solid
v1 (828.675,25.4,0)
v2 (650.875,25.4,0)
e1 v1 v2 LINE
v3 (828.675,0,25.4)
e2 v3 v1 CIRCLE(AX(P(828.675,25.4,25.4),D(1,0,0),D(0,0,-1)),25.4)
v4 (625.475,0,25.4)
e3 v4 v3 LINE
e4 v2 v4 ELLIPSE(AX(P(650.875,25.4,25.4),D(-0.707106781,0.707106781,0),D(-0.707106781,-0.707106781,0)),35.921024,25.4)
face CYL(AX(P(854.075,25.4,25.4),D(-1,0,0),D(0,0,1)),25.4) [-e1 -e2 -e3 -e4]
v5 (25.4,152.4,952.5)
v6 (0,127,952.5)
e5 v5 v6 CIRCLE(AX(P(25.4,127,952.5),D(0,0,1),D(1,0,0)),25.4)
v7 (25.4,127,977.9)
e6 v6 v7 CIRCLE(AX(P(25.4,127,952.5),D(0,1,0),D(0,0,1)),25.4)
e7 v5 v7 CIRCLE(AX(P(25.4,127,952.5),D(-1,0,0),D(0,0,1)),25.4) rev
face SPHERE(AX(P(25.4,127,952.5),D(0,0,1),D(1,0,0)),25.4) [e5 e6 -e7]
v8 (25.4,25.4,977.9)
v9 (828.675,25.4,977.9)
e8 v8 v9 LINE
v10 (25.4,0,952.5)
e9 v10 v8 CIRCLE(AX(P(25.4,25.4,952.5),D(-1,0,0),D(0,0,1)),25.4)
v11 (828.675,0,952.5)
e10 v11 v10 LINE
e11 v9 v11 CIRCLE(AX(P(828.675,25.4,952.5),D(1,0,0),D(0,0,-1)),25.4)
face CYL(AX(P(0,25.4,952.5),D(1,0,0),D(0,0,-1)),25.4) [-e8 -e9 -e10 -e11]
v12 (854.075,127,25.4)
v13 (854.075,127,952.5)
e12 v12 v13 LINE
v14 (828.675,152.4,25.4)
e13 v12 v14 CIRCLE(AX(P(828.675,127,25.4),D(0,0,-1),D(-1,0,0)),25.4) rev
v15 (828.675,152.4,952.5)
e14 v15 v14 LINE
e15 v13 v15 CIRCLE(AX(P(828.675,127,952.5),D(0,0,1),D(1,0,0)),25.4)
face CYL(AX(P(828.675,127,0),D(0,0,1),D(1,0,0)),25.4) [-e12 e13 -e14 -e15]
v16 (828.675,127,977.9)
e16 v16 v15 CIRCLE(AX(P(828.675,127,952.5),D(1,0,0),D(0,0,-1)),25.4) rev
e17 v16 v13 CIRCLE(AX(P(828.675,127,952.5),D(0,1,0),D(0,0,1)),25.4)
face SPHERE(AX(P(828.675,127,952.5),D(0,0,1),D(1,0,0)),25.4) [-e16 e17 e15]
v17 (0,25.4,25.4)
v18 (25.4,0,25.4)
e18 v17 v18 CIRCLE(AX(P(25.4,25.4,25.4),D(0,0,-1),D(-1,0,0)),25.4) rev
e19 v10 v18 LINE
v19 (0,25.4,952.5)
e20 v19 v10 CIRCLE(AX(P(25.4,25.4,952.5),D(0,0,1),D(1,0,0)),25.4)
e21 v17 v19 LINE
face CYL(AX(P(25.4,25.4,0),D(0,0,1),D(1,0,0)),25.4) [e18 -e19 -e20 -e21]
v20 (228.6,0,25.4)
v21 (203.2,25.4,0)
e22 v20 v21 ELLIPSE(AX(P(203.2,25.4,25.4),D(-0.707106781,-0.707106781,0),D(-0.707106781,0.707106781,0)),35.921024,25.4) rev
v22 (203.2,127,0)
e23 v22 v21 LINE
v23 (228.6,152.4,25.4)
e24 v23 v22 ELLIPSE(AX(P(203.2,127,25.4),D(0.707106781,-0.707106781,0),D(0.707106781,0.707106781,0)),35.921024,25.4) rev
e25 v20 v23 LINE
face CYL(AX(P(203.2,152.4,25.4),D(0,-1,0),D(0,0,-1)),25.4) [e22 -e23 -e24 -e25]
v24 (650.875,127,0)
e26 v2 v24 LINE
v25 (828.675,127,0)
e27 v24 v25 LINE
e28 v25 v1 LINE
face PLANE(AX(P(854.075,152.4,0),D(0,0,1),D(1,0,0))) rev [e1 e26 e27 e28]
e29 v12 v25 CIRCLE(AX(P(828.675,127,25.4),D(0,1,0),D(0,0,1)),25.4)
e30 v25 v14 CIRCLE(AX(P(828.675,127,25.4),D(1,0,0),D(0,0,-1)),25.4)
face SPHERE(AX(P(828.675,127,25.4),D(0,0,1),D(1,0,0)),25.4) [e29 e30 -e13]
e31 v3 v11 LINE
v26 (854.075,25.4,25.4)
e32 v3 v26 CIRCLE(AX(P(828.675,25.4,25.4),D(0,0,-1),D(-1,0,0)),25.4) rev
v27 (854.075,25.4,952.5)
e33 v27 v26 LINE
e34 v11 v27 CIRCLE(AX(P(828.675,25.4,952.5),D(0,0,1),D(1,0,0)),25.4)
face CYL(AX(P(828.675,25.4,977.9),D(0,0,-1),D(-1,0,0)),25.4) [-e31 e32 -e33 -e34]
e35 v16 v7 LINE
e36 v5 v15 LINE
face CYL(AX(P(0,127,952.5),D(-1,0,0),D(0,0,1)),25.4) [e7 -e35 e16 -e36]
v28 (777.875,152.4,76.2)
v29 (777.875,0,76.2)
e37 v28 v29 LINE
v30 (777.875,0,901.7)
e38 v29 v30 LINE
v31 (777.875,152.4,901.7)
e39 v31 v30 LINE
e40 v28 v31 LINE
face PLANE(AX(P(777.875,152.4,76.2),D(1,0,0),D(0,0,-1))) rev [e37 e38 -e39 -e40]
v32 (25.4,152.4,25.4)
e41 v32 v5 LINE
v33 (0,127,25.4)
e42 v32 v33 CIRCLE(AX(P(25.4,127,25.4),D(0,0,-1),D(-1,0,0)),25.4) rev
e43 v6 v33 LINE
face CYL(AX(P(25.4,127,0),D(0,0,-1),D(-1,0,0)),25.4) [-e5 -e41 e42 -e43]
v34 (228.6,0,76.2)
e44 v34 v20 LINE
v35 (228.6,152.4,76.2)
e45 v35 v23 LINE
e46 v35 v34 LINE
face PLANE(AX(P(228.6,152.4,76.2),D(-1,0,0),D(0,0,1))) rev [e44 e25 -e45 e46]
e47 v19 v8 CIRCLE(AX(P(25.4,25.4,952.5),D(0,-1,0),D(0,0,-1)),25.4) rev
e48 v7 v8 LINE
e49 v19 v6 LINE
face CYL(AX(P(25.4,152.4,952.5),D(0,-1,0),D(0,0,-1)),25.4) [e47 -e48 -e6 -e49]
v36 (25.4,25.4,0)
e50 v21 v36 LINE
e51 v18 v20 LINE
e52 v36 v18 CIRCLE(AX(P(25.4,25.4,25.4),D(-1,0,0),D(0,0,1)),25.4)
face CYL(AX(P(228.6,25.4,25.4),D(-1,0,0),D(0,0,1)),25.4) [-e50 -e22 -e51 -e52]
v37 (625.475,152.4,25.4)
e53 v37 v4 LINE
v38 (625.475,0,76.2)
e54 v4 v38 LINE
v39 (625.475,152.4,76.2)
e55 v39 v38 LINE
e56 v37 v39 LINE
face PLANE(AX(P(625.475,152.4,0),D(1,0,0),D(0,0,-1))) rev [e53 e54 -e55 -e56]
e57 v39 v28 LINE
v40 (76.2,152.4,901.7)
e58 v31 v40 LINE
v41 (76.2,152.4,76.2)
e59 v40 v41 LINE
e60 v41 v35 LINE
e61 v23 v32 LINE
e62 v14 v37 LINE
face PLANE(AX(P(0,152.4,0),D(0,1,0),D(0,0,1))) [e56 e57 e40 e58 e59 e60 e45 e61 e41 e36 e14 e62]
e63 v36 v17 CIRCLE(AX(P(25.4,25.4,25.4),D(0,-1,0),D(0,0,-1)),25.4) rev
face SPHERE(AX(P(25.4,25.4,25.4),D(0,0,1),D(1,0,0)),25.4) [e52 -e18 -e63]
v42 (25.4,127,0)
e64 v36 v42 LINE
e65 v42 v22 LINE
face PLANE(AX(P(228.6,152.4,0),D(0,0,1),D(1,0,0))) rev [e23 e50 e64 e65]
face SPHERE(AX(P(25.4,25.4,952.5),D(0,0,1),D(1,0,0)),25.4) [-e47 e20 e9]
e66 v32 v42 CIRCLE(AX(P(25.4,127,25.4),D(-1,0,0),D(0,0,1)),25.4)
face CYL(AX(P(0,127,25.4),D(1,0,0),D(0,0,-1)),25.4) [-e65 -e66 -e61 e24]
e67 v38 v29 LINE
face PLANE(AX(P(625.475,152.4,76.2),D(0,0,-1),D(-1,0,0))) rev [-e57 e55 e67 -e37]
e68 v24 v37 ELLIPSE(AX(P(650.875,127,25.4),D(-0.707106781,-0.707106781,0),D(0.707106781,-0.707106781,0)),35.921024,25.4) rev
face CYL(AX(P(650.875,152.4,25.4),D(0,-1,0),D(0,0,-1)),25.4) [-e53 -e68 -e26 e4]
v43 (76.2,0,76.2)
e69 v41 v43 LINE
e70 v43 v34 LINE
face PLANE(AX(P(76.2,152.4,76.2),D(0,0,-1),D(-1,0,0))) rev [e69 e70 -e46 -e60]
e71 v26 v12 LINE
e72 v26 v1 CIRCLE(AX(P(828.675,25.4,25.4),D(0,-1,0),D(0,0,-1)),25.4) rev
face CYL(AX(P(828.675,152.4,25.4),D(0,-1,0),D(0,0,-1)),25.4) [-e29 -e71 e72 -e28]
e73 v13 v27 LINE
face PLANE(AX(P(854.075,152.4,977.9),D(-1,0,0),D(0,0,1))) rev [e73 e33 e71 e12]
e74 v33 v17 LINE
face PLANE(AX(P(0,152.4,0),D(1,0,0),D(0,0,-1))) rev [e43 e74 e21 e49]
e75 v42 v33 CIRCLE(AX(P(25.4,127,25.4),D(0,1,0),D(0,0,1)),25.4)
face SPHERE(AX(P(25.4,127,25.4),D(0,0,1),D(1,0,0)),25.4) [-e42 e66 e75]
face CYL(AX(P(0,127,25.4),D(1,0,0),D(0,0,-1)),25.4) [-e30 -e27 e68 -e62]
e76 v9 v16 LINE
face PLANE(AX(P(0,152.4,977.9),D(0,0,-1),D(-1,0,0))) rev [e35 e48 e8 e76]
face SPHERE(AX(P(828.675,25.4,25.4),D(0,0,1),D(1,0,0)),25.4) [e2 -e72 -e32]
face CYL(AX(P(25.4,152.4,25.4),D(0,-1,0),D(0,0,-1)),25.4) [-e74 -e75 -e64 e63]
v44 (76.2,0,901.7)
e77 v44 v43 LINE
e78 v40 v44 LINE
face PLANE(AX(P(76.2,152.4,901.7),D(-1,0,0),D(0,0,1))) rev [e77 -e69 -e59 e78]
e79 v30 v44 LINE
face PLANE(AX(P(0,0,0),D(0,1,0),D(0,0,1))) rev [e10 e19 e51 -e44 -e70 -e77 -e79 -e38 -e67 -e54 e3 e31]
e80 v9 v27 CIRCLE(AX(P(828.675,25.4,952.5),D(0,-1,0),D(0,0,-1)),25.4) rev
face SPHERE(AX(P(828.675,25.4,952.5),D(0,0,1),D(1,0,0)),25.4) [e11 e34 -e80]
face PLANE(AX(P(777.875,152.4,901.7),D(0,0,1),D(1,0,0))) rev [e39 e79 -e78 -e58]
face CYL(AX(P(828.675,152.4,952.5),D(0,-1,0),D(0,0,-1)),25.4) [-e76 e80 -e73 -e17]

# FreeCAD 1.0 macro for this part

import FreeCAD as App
import Part
import Sketcher
Q = App.Units.Quantity


def edges_at(feature, points):
    """Names of the edges that pass closest to the given points."""
    edges = feature.Shape.Edges
    near = lambda p: min(range(len(edges)), key=lambda i: edges[i].distToShape(Part.Vertex(*p))[0])
    return sorted({f"Edge{near(p) + 1}" for p in points})

doc = App.newDocument("Part")
body = doc.addObject("PartDesign::Body", "Body")

sketch1 = doc.addObject("Sketcher::SketchObject", "Sketch")
body.addObject(sketch1)
sketch1.AttachmentSupport = (doc.XZ_Plane, [""])
sketch1.MapMode = "FlatFace"
sketch1.addGeometry([
    Part.LineSegment(App.Vector(229, 0, 0), App.Vector(0, 0, 0)),
    Part.LineSegment(App.Vector(0, 0, 0), App.Vector(0, 978, 0)),
    Part.LineSegment(App.Vector(0, 978, 0), App.Vector(854, 978, 0)),
    Part.LineSegment(App.Vector(854, 978, 0), App.Vector(854, 0, 0)),
    Part.LineSegment(App.Vector(854, 0, 0), App.Vector(625, 0, 0)),
    Part.LineSegment(App.Vector(625, 0, 0), App.Vector(625, 76, 0)),
    Part.LineSegment(App.Vector(625, 76, 0), App.Vector(778, 76, 0)),
    Part.LineSegment(App.Vector(778, 76, 0), App.Vector(778, 902, 0)),
    Part.LineSegment(App.Vector(778, 902, 0), App.Vector(76, 902, 0)),
    Part.LineSegment(App.Vector(76, 902, 0), App.Vector(76, 76, 0)),
    Part.LineSegment(App.Vector(76, 76, 0), App.Vector(229, 76, 0)),
    Part.LineSegment(App.Vector(229, 76, 0), App.Vector(229, 0, 0)),
], False)
sketch1.addConstraint([
    Sketcher.Constraint("Coincident", 0, 2, 1, 1),
    Sketcher.Constraint("Coincident", 1, 2, 2, 1),
    Sketcher.Constraint("Coincident", 2, 2, 3, 1),
    Sketcher.Constraint("Coincident", 3, 2, 4, 1),
    Sketcher.Constraint("Coincident", 4, 2, 5, 1),
    Sketcher.Constraint("Coincident", 5, 2, 6, 1),
    Sketcher.Constraint("Coincident", 6, 2, 7, 1),
    Sketcher.Constraint("Coincident", 7, 2, 8, 1),
    Sketcher.Constraint("Coincident", 8, 2, 9, 1),
    Sketcher.Constraint("Coincident", 9, 2, 10, 1),
    Sketcher.Constraint("Coincident", 10, 2, 11, 1),
    Sketcher.Constraint("Coincident", 11, 2, 0, 1),
    Sketcher.Constraint("Horizontal", 0),
    Sketcher.Constraint("Vertical", 1),
    Sketcher.Constraint("Horizontal", 2),
    Sketcher.Constraint("Vertical", 3),
    Sketcher.Constraint("Horizontal", 4),
    Sketcher.Constraint("Vertical", 5),
    Sketcher.Constraint("Horizontal", 6),
    Sketcher.Constraint("Vertical", 7),
    Sketcher.Constraint("Horizontal", 8),
    Sketcher.Constraint("Vertical", 9),
    Sketcher.Constraint("Horizontal", 10),
    Sketcher.Constraint("Vertical", 11),
    Sketcher.Constraint("Coincident", 0, 2, -1, 1),
    Sketcher.Constraint("PointOnObject", 3, 2, -1),
    Sketcher.Constraint("Horizontal", 6, 2, 9, 2),
    Sketcher.Constraint("Equal", 0, 4),
    Sketcher.Constraint("Equal", 6, 10),
    Sketcher.Constraint("DistanceX", 0, 2, 0, 1, Q("9 in")),
    Sketcher.Constraint("DistanceX", 6, 1, 6, 2, Q("6 in")),
    Sketcher.Constraint("DistanceY", 5, 1, 5, 2, Q("3 in")),
    Sketcher.Constraint("DistanceY", 1, 1, 1, 2, Q("38.5 in")),
    Sketcher.Constraint("DistanceY", 7, 1, 7, 2, Q("32.5 in")),
    Sketcher.Constraint("DistanceX", 2, 1, 2, 2, Q("33.625 in")),
])
pad1 = doc.addObject("PartDesign::Pad", "Pad")
body.addObject(pad1)
pad1.Profile = sketch1
pad1.Length = Q("6 in")
pad1.Reversed = True
doc.recompute()

fillet = doc.addObject("PartDesign::Fillet", "Fillet")
body.addObject(fillet)
fillet.Base = (pad1, edges_at(pad1, [
    (0, 152.4, 488.95),
    (427.038, 152.4, 977.9),
    (739.775, 0, 0),
    (854.075, 0, 488.95),
    (427.038, 0, 977.9),
    (0, 0, 488.95),
    (114.3, 0, 0),
    (854.075, 152.4, 488.95),
    (739.775, 152.4, 0),
    (625.475, 76.2, 0),
    (854.075, 76.2, 0),
    (854.075, 76.2, 977.9),
    (0, 76.2, 977.9),
    (0, 76.2, 0),
    (228.6, 76.2, 0),
    (114.3, 152.4, 0),
]))
fillet.Radius = Q("1 in")

doc.recompute()
